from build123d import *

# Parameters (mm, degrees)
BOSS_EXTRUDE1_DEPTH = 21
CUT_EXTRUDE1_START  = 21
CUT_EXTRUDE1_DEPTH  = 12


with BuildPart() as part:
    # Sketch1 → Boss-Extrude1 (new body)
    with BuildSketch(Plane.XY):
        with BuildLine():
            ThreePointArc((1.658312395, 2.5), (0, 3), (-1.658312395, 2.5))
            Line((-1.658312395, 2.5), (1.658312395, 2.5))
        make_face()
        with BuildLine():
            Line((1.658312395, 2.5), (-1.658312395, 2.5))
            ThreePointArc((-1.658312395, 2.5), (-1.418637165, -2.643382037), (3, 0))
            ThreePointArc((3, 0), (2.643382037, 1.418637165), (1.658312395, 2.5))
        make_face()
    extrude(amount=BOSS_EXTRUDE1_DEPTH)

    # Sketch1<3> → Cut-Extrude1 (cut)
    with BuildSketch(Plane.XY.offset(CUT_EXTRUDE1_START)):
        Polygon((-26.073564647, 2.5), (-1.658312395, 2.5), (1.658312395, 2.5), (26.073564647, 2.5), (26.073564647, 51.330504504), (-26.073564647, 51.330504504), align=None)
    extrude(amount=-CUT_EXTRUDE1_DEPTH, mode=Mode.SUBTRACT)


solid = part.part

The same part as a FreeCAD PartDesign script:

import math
import FreeCAD as App
import Part
import Sketcher

doc = App.newDocument("Part")
body = doc.addObject("PartDesign::Body", "Body")

# Sketch on XY plane
sketch1 = body.newObject("Sketcher::SketchObject", "Sketch")
sketch1.AttachmentSupport = (doc.getObject("XY_Plane"), [""])
sketch1.MapMode = "FlatFace"
sketch1.addGeometry([
    Part.ArcOfCircle(Part.Circle(App.Vector(0, 0, 0), App.Vector(0, 0, 1), 3), math.radians(56.44269), math.radians(123.55731)),
    Part.ArcOfCircle(Part.Circle(App.Vector(0, 0, 0), App.Vector(0, 0, 1), 3), math.radians(123.55731), math.radians(360)),
    Part.ArcOfCircle(Part.Circle(App.Vector(0, 0, 0), App.Vector(0, 0, 1), 3), math.radians(0), math.radians(56.44269)),
], False)
sketch1.addConstraint([
    Sketcher.Constraint("Tangent", 0, 2, 1, 1),
    Sketcher.Constraint("Tangent", 1, 2, 2, 1),
    Sketcher.Constraint("Tangent", 2, 2, 0, 1),
    Sketcher.Constraint("Coincident", 0, 3, -1, 1),
    Sketcher.Constraint("PointOnObject", 1, 2, -1),
    Sketcher.Constraint("Horizontal", 0, 2, 2, 2),
    Sketcher.Constraint("Radius", 0, 3.0),
    Sketcher.Constraint("DistanceY", -1, 1, 0, 2, 2.5),
])
pad1 = body.newObject("PartDesign::Pad", "Pad")
pad1.Profile = sketch1
pad1.Length = 21

# Sketch on XY plane
sketch2 = body.newObject("Sketcher::SketchObject", "Sketch001")
sketch2.AttachmentSupport = (doc.getObject("XY_Plane"), [""])
sketch2.MapMode = "FlatFace"
sketch2.AttachmentOffset = App.Placement(App.Vector(0, 0, 21), App.Rotation())
sketch2.addGeometry([
    Part.LineSegment(App.Vector(-26.073565, 2.5, 0), App.Vector(26.073565, 2.5, 0)),
    Part.LineSegment(App.Vector(26.073565, 2.5, 0), App.Vector(26.073565, 51.330505, 0)),
    Part.LineSegment(App.Vector(26.073565, 51.330505, 0), App.Vector(-26.073565, 51.330505, 0)),
    Part.LineSegment(App.Vector(-26.073565, 51.330505, 0), App.Vector(-26.073565, 2.5, 0)),
], False)
sketch2.addConstraint([
    Sketcher.Constraint("Coincident", 0, 2, 1, 1),
    Sketcher.Constraint("Coincident", 1, 2, 2, 1),
    Sketcher.Constraint("Coincident", 2, 2, 3, 1),
    Sketcher.Constraint("Coincident", 3, 2, 0, 1),
    Sketcher.Constraint("Horizontal", 0),
    Sketcher.Constraint("Vertical", 1),
    Sketcher.Constraint("Horizontal", 2),
    Sketcher.Constraint("Vertical", 3),
    Sketcher.Constraint("DistanceY", -1, 1, 0, 2, 2.5),
    Sketcher.Constraint("DistanceX", 0, 1, 0, 2, 52.147129),
    Sketcher.Constraint("DistanceY", 1, 1, 1, 2, 48.830505),
    Sketcher.Constraint("DistanceX", -1, 1, 0, 2, 26.073565),
])
pocket1 = body.newObject("PartDesign::Pocket", "Pocket")
pocket1.Profile = sketch2
pocket1.Length = 12

doc.recompute()
